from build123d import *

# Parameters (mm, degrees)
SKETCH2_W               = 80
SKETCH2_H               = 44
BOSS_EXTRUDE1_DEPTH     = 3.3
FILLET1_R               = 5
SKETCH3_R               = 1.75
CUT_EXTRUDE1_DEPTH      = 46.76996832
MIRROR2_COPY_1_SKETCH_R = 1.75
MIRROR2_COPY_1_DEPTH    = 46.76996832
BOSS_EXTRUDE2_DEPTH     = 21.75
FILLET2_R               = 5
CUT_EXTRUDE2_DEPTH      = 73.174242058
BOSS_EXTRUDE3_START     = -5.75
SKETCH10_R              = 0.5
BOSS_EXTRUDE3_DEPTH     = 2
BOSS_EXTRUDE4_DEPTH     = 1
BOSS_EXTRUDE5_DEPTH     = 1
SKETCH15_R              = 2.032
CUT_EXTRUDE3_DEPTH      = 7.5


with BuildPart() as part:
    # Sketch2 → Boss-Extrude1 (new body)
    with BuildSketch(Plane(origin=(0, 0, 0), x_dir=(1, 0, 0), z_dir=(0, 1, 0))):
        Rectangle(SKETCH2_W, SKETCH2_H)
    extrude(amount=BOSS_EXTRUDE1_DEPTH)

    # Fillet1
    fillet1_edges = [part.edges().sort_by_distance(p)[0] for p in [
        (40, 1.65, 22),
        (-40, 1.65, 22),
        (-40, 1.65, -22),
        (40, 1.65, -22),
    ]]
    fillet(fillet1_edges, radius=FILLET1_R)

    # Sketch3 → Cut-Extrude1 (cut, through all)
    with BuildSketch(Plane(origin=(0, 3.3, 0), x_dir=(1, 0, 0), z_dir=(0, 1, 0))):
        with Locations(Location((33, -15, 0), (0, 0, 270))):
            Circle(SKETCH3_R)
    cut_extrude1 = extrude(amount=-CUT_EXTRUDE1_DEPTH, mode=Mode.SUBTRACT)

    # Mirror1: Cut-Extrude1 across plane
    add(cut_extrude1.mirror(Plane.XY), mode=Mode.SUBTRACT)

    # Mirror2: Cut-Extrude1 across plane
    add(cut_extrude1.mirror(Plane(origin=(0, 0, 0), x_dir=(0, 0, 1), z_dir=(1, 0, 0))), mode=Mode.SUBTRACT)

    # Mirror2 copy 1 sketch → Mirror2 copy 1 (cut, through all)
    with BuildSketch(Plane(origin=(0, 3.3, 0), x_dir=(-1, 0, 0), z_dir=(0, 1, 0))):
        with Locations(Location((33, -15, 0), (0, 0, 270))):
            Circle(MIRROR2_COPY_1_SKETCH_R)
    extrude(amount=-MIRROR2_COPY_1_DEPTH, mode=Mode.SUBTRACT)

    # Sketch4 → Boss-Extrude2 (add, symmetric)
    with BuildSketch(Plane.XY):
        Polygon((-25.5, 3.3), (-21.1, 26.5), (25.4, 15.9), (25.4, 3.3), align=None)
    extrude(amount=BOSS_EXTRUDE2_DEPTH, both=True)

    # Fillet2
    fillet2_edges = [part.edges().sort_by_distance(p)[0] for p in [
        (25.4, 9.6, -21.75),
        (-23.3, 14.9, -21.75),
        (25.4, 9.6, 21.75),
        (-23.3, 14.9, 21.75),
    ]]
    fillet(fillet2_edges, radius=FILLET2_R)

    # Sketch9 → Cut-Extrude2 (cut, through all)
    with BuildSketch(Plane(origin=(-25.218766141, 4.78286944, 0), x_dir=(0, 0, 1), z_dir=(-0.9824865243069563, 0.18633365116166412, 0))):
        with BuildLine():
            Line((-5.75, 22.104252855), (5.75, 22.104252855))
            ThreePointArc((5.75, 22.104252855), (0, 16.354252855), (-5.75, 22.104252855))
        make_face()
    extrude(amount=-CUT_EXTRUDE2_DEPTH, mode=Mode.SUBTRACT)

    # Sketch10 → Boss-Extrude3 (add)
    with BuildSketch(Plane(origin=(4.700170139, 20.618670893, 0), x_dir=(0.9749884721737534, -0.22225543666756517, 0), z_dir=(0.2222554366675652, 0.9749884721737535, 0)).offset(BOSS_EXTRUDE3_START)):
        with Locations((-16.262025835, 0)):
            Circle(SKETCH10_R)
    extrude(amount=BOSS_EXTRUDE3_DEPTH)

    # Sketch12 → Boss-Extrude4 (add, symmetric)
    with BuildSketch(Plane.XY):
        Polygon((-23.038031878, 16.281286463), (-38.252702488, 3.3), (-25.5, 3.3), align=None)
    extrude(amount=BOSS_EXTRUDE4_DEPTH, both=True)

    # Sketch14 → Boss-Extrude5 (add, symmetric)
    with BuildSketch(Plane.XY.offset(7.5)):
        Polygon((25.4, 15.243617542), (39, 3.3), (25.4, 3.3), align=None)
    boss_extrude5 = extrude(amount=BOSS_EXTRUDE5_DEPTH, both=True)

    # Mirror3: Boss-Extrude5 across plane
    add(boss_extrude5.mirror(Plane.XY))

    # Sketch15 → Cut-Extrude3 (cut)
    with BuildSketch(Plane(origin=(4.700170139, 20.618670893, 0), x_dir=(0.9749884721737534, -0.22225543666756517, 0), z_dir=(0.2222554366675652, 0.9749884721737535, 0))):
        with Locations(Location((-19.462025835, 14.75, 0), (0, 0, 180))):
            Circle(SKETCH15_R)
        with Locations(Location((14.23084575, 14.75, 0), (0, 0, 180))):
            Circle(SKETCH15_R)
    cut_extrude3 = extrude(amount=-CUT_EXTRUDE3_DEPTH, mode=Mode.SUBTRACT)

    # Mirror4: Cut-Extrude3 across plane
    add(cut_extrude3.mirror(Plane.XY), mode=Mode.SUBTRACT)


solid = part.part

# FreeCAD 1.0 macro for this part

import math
import FreeCAD as App
import Part
import Sketcher

V = App.Vector
Q = App.Units.Quantity


def edges_at(feature, points):
    """Names of the edges that pass closest to the given points."""
    edges = feature.Shape.Edges
    near = lambda p: min(range(len(edges)), key=lambda i: edges[i].distToShape(Part.Vertex(*p))[0])
    return sorted({f"Edge{near(p) + 1}" for p in points})


def add_polygon(sketch, points):
    """Adds a closed chain of lines whose ends are joined by coincident constraints."""
    first, n = sketch.GeometryCount, len(points)
    for a, b in zip(points, points[1:] + points[:1]):
        sketch.addGeometry(Part.LineSegment(App.Vector(*a, 0), App.Vector(*b, 0)), False)
    for i in range(n):
        sketch.addConstraint(Sketcher.Constraint("Coincident", first + i, 2, first + (i + 1) % n, 1))

doc = App.newDocument("Part")
body = doc.addObject("PartDesign::Body", "Body")

sketch1 = body.newObject("Sketcher::SketchObject", "Sketch")
sketch1.AttachmentSupport = (doc.getObject("XZ_Plane"), [""])
sketch1.MapMode = "FlatFace"
add_polygon(sketch1, [(-40, -22), (-40, 22), (40, 22), (40, -22)])
sketch1.addConstraint([
    Sketcher.Constraint("Vertical", 0),
    Sketcher.Constraint("Horizontal", 1),
    Sketcher.Constraint("Vertical", 2),
    Sketcher.Constraint("Horizontal", 3),
    Sketcher.Constraint("Symmetric", 0, 2, 2, 2, -1, 1),
    Sketcher.Constraint("DistanceX", 1, 1, 1, 2, Q("80 mm")),
    Sketcher.Constraint("DistanceY", 0, 1, 0, 2, Q("44 mm")),
])
pad1 = body.newObject("PartDesign::Pad", "Pad")
pad1.Profile = sketch1
pad1.Length = 3.3
pad1.Reversed = True
doc.recompute()

fillet = body.newObject("PartDesign::Fillet", "Fillet")
fillet.Base = (pad1, edges_at(pad1, [
    (40, 1.65, 22),
    (-40, 1.65, 22),
    (-40, 1.65, -22),
    (40, 1.65, -22),
]))
fillet.Radius = 5

sketch2 = body.newObject("Sketcher::SketchObject", "Sketch001")
sketch2.AttachmentSupport = (doc.getObject("XZ_Plane"), [""])
sketch2.MapMode = "FlatFace"
sketch2.AttachmentOffset = App.Placement(V(0, 0, -3.3), App.Rotation())
sketch2.addGeometry(Part.Circle(V(33, 15, 0), V(0, 0, 1), 1.75), False)
sketch2.addConstraint([
    Sketcher.Constraint("Diameter", 0, Q("3.5 mm")),
    Sketcher.Constraint("DistanceX", -1, 1, 0, 3, Q("33 mm")),
    Sketcher.Constraint("DistanceY", -1, 1, 0, 3, Q("15 mm")),
])
pocket1 = body.newObject("PartDesign::Pocket", "Pocket")
pocket1.Profile = sketch2
pocket1.Type = "ThroughAll"
pocket1.Reversed = True
doc.recompute()

mirrored = body.newObject("PartDesign::Mirrored", "Mirrored")
mirrored.Originals = [pocket1]
mirrored.MirrorPlane = (doc.getObject("XY_Plane"), [""])
body.Tip = mirrored
doc.recompute()

mirrored2 = body.newObject("PartDesign::Mirrored", "Mirrored001")
mirrored2.Originals = [pocket1]
mirrored2.MirrorPlane = (doc.getObject("YZ_Plane"), [""])
body.Tip = mirrored2

sketch3 = body.newObject("Sketcher::SketchObject", "Sketch002")
sketch3.AttachmentSupport = (doc.getObject("XZ_Plane"), [""])
sketch3.MapMode = "FlatFace"
sketch3.AttachmentOffset = App.Placement(V(0, 0, -3.3), App.Rotation())
sketch3.addGeometry(Part.Circle(V(-33, -15, 0), V(0, 0, 1), 1.75), False)
sketch3.addConstraint([
    Sketcher.Constraint("Diameter", 0, Q("3.5 mm")),
    Sketcher.Constraint("DistanceX", 0, 3, -1, 1, Q("33 mm")),
    Sketcher.Constraint("DistanceY", 0, 3, -1, 1, Q("15 mm")),
])
pocket2 = body.newObject("PartDesign::Pocket", "Pocket001")
pocket2.Profile = sketch3
pocket2.Type = "ThroughAll"
pocket2.Reversed = True

sketch4 = body.newObject("Sketcher::SketchObject", "Sketch003")
sketch4.AttachmentSupport = (doc.getObject("XY_Plane"), [""])
sketch4.MapMode = "FlatFace"
add_polygon(sketch4, [(-21.1, 26.5), (-25.5, 3.3), (25.4, 3.3), (25.4, 15.9)])
sketch4.addConstraint([
    Sketcher.Constraint("Horizontal", 1),
    Sketcher.Constraint("Vertical", 2),
    Sketcher.Constraint("DistanceX", 1, 1, 1, 2, Q("50.9 mm")),
    Sketcher.Constraint("DistanceY", 2, 1, 2, 2, Q("12.6 mm")),
    Sketcher.Constraint("DistanceX", 0, 2, -1, 1, Q("25.5 mm")),
    Sketcher.Constraint("DistanceY", -1, 1, 0, 2, Q("3.3 mm")),
    Sketcher.Constraint("DistanceX", 3, 2, -1, 1, Q("21.1 mm")),
    Sketcher.Constraint("DistanceY", -1, 1, 3, 2, Q("26.5 mm")),
])
pad2 = body.newObject("PartDesign::Pad", "Pad001")
pad2.Profile = sketch4
pad2.Length = 43.5
pad2.Midplane = True
doc.recompute()

fillet2 = body.newObject("PartDesign::Fillet", "Fillet001")
fillet2.Base = (pad2, edges_at(pad2, [
    (25.4, 9.6, -21.75),
    (-23.3, 14.9, -21.75),
    (25.4, 9.6, 21.75),
    (-23.3, 14.9, 21.75),
]))
fillet2.Radius = 5

sketch5 = body.newObject("Sketcher::SketchObject", "Sketch004")
sketch5.Placement = App.Placement(V(-25.218766, 4.782869, 0), App.Rotation(V(0, 0, 1), V(0.186333651, 0.982486524, 0), V(-0.982486524, 0.186333651, 0), "ZXY"))
sketch5.addGeometry([
    Part.LineSegment(V(5.75, 22.104253, 0), V(-5.75, 22.104253, 0)),
    Part.ArcOfCircle(Part.Circle(V(0, 22.104253, 0), V(0, 0, 1), 5.75), math.radians(180), math.radians(360)),
], False)
sketch5.addConstraint([
    Sketcher.Constraint("Coincident", 0, 1, 1, 2),
    Sketcher.Constraint("Coincident", 1, 1, 0, 2),
    Sketcher.Constraint("Horizontal", 0),
    Sketcher.Constraint("PointOnObject", 1, 3, -2),
    Sketcher.Constraint("Horizontal", 1, 3, 0, 1),
    Sketcher.Constraint("Radius", 1, Q("5.75 mm")),
    Sketcher.Constraint("DistanceY", -1, 1, 1, 3, Q("22.104253 mm")),
])
pocket3 = body.newObject("PartDesign::Pocket", "Pocket002")
pocket3.Profile = sketch5
pocket3.Type = "ThroughAll"

sketch6 = body.newObject("Sketcher::SketchObject", "Sketch005")
sketch6.Placement = App.Placement(V(3.422201, 15.012487, 0), App.Rotation(V(0.974988472, -0.222255437, 0), V(0, 0, -1), V(0.222255437, 0.974988472, 0), "ZXY"))
sketch6.addGeometry(Part.Circle(V(-16.262026, 0, 0), V(0, 0, 1), 0.5), False)
sketch6.addConstraint([
    Sketcher.Constraint("PointOnObject", 0, 3, -1),
    Sketcher.Constraint("Diameter", 0, Q("1 mm")),
    Sketcher.Constraint("DistanceX", 0, 3, -1, 1, Q("16.262026 mm")),
])
pad3 = body.newObject("PartDesign::Pad", "Pad002")
pad3.Profile = sketch6
pad3.Length = 2

sketch7 = body.newObject("Sketcher::SketchObject", "Sketch006")
sketch7.AttachmentSupport = (doc.getObject("XY_Plane"), [""])
sketch7.MapMode = "FlatFace"
add_polygon(sketch7, [(-23.038032, 16.281286), (-38.252702, 3.3), (-25.5, 3.3)])
sketch7.addConstraint([
    Sketcher.Constraint("Horizontal", 1),
    Sketcher.Constraint("Distance", 0, Q("20 mm")),
    Sketcher.Constraint("DistanceY", -1, 1, 0, 2, Q("3.3 mm")),
    Sketcher.Constraint("DistanceX", 1, 2, -1, 1, Q("25.5 mm")),
    Sketcher.Constraint("DistanceX", 1, 1, 1, 2, Q("12.752702 mm")),
    Sketcher.Constraint("DistanceX", 2, 2, -1, 1, Q("23.038032 mm")),
])
pad4 = body.newObject("PartDesign::Pad", "Pad003")
pad4.Profile = sketch7
pad4.Length = 2
pad4.Midplane = True

sketch8 = body.newObject("Sketcher::SketchObject", "Sketch007")
sketch8.AttachmentSupport = (doc.getObject("XY_Plane"), [""])
sketch8.MapMode = "FlatFace"
sketch8.AttachmentOffset = App.Placement(V(0, 0, 7.5), App.Rotation())
add_polygon(sketch8, [(39, 3.3), (25.4, 15.243618), (25.4, 3.3)])
sketch8.addConstraint([
    Sketcher.Constraint("Vertical", 1),
    Sketcher.Constraint("Horizontal", 2),
    Sketcher.Constraint("DistanceX", 2, 1, 2, 2, Q("13.6 mm")),
    Sketcher.Constraint("DistanceX", -1, 1, 2, 2, Q("39 mm")),
    Sketcher.Constraint("Distance", 0, Q("18.1 mm")),
    Sketcher.Constraint("DistanceY", -1, 1, 1, 2, Q("3.3 mm")),
])
pad5 = body.newObject("PartDesign::Pad", "Pad004")
pad5.Profile = sketch8
pad5.Length = 2
pad5.Midplane = True
doc.recompute()

mirrored3 = body.newObject("PartDesign::Mirrored", "Mirrored002")
mirrored3.Originals = [pad5]
mirrored3.MirrorPlane = (doc.getObject("XY_Plane"), [""])
body.Tip = mirrored3

sketch9 = body.newObject("Sketcher::SketchObject", "Sketch008")
sketch9.Placement = App.Placement(V(4.70017, 20.618671, 0), App.Rotation(V(0.974988472, -0.222255437, 0), V(0, 0, -1), V(0.222255437, 0.974988472, 0), "ZXY"))
sketch9.addGeometry([
    Part.Circle(V(-19.462026, 14.75, 0), V(0, 0, 1), 2.032),
    Part.Circle(V(14.230846, 14.75, 0), V(0, 0, 1), 2.032),
], False)
sketch9.addConstraint([
    Sketcher.Constraint("Equal", 0, 1),
    Sketcher.Constraint("Horizontal", 0, 3, 1, 3),
    Sketcher.Constraint("Diameter", 0, Q("4.064 mm")),
    Sketcher.Constraint("DistanceY", -1, 1, 0, 3, Q("14.75 mm")),
    Sketcher.Constraint("DistanceX", 0, 3, 1, 3, Q("33.692872 mm")),
    Sketcher.Constraint("DistanceX", 0, 3, -1, 1, Q("19.462026 mm")),
])
pocket4 = body.newObject("PartDesign::Pocket", "Pocket003")
pocket4.Profile = sketch9
pocket4.Length = 7.5
doc.recompute()

mirrored4 = body.newObject("PartDesign::Mirrored", "Mirrored003")
mirrored4.Originals = [pocket4]
mirrored4.MirrorPlane = (doc.getObject("XY_Plane"), [""])
body.Tip = mirrored4

doc.recompute()
